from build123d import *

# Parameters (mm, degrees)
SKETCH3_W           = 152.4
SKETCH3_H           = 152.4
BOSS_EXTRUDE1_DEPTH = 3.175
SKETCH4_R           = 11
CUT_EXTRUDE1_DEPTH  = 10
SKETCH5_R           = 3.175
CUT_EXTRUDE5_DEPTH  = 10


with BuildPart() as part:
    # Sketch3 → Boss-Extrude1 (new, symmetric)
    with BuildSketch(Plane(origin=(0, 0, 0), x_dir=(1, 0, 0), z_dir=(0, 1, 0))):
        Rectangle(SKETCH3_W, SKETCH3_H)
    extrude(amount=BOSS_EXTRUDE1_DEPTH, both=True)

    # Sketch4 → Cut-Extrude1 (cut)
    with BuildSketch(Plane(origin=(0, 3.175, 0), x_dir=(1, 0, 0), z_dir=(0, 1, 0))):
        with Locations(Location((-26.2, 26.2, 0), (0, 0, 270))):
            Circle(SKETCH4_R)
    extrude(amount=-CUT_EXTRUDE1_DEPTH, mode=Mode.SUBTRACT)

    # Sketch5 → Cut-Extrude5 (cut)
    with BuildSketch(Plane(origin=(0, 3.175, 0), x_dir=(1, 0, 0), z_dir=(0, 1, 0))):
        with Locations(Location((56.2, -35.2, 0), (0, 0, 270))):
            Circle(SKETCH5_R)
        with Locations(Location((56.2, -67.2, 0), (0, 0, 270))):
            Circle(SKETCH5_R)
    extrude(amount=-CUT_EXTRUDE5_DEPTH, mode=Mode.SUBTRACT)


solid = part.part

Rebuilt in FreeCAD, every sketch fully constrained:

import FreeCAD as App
import Part
import Sketcher

V = App.Vector
Q = App.Units.Quantity

doc = App.newDocument("Part")
body = doc.addObject("PartDesign::Body", "Body")

# Sketch on XZ plane
sketch1 = body.newObject("Sketcher::SketchObject", "Sketch")
sketch1.AttachmentSupport = (doc.getObject("XZ_Plane"), [""])
sketch1.MapMode = "FlatFace"
sketch1.addGeometry(Part.LineSegment(V(-76.2, -76.2, 0), V(-76.2, 76.2, 0)), False)
sketch1.addGeometry(Part.LineSegment(V(-76.2, 76.2, 0), V(76.2, 76.2, 0)), False)
sketch1.addGeometry(Part.LineSegment(V(76.2, 76.2, 0), V(76.2, -76.2, 0)), False)
sketch1.addGeometry(Part.LineSegment(V(76.2, -76.2, 0), V(-76.2, -76.2, 0)), False)
sketch1.addConstraint(Sketcher.Constraint("Coincident", 0, 2, 1, 1))
sketch1.addConstraint(Sketcher.Constraint("Coincident", 1, 2, 2, 1))
sketch1.addConstraint(Sketcher.Constraint("Coincident", 2, 2, 3, 1))
sketch1.addConstraint(Sketcher.Constraint("Coincident", 3, 2, 0, 1))
sketch1.addConstraint(Sketcher.Constraint("Vertical", 0))
sketch1.addConstraint(Sketcher.Constraint("Horizontal", 1))
sketch1.addConstraint(Sketcher.Constraint("Vertical", 2))
sketch1.addConstraint(Sketcher.Constraint("Horizontal", 3))
sketch1.addConstraint(Sketcher.Constraint("Symmetric", 0, 2, 2, 2, -1, 1))
sketch1.addConstraint(Sketcher.Constraint("Equal", 3, 0))
sketch1.addConstraint(Sketcher.Constraint("DistanceX", 1, 1, 1, 2, Q("6 in")))
pad1 = body.newObject("PartDesign::Pad", "Pad")
pad1.Profile = sketch1
pad1.Length = Q("0.25 in")
pad1.Midplane = True

# Sketch on XZ plane
sketch2 = body.newObject("Sketcher::SketchObject", "Sketch001")
sketch2.AttachmentSupport = (doc.getObject("XZ_Plane"), [""])
sketch2.MapMode = "FlatFace"
sketch2.AttachmentOffset = App.Placement(V(0, 0, -0.125 * 25.4), App.Rotation())
sketch2.addGeometry(Part.Circle(V(-26.2, -26.2, 0), V(0, 0, 1), 11), False)
sketch2.addConstraint(Sketcher.Constraint("Diameter", 0, 22.0))
sketch2.addConstraint(Sketcher.Constraint("DistanceX", 0, 3, -1, 1, 26.2))
sketch2.addConstraint(Sketcher.Constraint("DistanceY", 0, 3, -1, 1, 26.2))
pocket1 = body.newObject("PartDesign::Pocket", "Pocket")
pocket1.Profile = sketch2
pocket1.Length = 10
pocket1.Reversed = True

# Sketch on XZ plane
sketch3 = body.newObject("Sketcher::SketchObject", "Sketch002")
sketch3.AttachmentSupport = (doc.getObject("XZ_Plane"), [""])
sketch3.MapMode = "FlatFace"
sketch3.AttachmentOffset = App.Placement(V(0, 0, -0.125 * 25.4), App.Rotation())
sketch3.addGeometry(Part.Circle(V(56.2, 35.2, 0), V(0, 0, 1), 3.175), False)
sketch3.addGeometry(Part.Circle(V(56.2, 67.2, 0), V(0, 0, 1), 3.175), False)
sketch3.addConstraint(Sketcher.Constraint("Equal", 0, 1))
sketch3.addConstraint(Sketcher.Constraint("Vertical", 0, 3, 1, 3))
sketch3.addConstraint(Sketcher.Constraint("Diameter", 0, Q("0.25 in")))
sketch3.addConstraint(Sketcher.Constraint("DistanceX", -1, 1, 0, 3, 56.2))
sketch3.addConstraint(Sketcher.Constraint("DistanceY", -1, 1, 0, 3, 35.2))
sketch3.addConstraint(Sketcher.Constraint("DistanceY", -1, 1, 1, 3, 67.2))
pocket2 = body.newObject("PartDesign::Pocket", "Pocket001")
pocket2.Profile = sketch3
pocket2.Length = 10
pocket2.Reversed = True

doc.recompute()
